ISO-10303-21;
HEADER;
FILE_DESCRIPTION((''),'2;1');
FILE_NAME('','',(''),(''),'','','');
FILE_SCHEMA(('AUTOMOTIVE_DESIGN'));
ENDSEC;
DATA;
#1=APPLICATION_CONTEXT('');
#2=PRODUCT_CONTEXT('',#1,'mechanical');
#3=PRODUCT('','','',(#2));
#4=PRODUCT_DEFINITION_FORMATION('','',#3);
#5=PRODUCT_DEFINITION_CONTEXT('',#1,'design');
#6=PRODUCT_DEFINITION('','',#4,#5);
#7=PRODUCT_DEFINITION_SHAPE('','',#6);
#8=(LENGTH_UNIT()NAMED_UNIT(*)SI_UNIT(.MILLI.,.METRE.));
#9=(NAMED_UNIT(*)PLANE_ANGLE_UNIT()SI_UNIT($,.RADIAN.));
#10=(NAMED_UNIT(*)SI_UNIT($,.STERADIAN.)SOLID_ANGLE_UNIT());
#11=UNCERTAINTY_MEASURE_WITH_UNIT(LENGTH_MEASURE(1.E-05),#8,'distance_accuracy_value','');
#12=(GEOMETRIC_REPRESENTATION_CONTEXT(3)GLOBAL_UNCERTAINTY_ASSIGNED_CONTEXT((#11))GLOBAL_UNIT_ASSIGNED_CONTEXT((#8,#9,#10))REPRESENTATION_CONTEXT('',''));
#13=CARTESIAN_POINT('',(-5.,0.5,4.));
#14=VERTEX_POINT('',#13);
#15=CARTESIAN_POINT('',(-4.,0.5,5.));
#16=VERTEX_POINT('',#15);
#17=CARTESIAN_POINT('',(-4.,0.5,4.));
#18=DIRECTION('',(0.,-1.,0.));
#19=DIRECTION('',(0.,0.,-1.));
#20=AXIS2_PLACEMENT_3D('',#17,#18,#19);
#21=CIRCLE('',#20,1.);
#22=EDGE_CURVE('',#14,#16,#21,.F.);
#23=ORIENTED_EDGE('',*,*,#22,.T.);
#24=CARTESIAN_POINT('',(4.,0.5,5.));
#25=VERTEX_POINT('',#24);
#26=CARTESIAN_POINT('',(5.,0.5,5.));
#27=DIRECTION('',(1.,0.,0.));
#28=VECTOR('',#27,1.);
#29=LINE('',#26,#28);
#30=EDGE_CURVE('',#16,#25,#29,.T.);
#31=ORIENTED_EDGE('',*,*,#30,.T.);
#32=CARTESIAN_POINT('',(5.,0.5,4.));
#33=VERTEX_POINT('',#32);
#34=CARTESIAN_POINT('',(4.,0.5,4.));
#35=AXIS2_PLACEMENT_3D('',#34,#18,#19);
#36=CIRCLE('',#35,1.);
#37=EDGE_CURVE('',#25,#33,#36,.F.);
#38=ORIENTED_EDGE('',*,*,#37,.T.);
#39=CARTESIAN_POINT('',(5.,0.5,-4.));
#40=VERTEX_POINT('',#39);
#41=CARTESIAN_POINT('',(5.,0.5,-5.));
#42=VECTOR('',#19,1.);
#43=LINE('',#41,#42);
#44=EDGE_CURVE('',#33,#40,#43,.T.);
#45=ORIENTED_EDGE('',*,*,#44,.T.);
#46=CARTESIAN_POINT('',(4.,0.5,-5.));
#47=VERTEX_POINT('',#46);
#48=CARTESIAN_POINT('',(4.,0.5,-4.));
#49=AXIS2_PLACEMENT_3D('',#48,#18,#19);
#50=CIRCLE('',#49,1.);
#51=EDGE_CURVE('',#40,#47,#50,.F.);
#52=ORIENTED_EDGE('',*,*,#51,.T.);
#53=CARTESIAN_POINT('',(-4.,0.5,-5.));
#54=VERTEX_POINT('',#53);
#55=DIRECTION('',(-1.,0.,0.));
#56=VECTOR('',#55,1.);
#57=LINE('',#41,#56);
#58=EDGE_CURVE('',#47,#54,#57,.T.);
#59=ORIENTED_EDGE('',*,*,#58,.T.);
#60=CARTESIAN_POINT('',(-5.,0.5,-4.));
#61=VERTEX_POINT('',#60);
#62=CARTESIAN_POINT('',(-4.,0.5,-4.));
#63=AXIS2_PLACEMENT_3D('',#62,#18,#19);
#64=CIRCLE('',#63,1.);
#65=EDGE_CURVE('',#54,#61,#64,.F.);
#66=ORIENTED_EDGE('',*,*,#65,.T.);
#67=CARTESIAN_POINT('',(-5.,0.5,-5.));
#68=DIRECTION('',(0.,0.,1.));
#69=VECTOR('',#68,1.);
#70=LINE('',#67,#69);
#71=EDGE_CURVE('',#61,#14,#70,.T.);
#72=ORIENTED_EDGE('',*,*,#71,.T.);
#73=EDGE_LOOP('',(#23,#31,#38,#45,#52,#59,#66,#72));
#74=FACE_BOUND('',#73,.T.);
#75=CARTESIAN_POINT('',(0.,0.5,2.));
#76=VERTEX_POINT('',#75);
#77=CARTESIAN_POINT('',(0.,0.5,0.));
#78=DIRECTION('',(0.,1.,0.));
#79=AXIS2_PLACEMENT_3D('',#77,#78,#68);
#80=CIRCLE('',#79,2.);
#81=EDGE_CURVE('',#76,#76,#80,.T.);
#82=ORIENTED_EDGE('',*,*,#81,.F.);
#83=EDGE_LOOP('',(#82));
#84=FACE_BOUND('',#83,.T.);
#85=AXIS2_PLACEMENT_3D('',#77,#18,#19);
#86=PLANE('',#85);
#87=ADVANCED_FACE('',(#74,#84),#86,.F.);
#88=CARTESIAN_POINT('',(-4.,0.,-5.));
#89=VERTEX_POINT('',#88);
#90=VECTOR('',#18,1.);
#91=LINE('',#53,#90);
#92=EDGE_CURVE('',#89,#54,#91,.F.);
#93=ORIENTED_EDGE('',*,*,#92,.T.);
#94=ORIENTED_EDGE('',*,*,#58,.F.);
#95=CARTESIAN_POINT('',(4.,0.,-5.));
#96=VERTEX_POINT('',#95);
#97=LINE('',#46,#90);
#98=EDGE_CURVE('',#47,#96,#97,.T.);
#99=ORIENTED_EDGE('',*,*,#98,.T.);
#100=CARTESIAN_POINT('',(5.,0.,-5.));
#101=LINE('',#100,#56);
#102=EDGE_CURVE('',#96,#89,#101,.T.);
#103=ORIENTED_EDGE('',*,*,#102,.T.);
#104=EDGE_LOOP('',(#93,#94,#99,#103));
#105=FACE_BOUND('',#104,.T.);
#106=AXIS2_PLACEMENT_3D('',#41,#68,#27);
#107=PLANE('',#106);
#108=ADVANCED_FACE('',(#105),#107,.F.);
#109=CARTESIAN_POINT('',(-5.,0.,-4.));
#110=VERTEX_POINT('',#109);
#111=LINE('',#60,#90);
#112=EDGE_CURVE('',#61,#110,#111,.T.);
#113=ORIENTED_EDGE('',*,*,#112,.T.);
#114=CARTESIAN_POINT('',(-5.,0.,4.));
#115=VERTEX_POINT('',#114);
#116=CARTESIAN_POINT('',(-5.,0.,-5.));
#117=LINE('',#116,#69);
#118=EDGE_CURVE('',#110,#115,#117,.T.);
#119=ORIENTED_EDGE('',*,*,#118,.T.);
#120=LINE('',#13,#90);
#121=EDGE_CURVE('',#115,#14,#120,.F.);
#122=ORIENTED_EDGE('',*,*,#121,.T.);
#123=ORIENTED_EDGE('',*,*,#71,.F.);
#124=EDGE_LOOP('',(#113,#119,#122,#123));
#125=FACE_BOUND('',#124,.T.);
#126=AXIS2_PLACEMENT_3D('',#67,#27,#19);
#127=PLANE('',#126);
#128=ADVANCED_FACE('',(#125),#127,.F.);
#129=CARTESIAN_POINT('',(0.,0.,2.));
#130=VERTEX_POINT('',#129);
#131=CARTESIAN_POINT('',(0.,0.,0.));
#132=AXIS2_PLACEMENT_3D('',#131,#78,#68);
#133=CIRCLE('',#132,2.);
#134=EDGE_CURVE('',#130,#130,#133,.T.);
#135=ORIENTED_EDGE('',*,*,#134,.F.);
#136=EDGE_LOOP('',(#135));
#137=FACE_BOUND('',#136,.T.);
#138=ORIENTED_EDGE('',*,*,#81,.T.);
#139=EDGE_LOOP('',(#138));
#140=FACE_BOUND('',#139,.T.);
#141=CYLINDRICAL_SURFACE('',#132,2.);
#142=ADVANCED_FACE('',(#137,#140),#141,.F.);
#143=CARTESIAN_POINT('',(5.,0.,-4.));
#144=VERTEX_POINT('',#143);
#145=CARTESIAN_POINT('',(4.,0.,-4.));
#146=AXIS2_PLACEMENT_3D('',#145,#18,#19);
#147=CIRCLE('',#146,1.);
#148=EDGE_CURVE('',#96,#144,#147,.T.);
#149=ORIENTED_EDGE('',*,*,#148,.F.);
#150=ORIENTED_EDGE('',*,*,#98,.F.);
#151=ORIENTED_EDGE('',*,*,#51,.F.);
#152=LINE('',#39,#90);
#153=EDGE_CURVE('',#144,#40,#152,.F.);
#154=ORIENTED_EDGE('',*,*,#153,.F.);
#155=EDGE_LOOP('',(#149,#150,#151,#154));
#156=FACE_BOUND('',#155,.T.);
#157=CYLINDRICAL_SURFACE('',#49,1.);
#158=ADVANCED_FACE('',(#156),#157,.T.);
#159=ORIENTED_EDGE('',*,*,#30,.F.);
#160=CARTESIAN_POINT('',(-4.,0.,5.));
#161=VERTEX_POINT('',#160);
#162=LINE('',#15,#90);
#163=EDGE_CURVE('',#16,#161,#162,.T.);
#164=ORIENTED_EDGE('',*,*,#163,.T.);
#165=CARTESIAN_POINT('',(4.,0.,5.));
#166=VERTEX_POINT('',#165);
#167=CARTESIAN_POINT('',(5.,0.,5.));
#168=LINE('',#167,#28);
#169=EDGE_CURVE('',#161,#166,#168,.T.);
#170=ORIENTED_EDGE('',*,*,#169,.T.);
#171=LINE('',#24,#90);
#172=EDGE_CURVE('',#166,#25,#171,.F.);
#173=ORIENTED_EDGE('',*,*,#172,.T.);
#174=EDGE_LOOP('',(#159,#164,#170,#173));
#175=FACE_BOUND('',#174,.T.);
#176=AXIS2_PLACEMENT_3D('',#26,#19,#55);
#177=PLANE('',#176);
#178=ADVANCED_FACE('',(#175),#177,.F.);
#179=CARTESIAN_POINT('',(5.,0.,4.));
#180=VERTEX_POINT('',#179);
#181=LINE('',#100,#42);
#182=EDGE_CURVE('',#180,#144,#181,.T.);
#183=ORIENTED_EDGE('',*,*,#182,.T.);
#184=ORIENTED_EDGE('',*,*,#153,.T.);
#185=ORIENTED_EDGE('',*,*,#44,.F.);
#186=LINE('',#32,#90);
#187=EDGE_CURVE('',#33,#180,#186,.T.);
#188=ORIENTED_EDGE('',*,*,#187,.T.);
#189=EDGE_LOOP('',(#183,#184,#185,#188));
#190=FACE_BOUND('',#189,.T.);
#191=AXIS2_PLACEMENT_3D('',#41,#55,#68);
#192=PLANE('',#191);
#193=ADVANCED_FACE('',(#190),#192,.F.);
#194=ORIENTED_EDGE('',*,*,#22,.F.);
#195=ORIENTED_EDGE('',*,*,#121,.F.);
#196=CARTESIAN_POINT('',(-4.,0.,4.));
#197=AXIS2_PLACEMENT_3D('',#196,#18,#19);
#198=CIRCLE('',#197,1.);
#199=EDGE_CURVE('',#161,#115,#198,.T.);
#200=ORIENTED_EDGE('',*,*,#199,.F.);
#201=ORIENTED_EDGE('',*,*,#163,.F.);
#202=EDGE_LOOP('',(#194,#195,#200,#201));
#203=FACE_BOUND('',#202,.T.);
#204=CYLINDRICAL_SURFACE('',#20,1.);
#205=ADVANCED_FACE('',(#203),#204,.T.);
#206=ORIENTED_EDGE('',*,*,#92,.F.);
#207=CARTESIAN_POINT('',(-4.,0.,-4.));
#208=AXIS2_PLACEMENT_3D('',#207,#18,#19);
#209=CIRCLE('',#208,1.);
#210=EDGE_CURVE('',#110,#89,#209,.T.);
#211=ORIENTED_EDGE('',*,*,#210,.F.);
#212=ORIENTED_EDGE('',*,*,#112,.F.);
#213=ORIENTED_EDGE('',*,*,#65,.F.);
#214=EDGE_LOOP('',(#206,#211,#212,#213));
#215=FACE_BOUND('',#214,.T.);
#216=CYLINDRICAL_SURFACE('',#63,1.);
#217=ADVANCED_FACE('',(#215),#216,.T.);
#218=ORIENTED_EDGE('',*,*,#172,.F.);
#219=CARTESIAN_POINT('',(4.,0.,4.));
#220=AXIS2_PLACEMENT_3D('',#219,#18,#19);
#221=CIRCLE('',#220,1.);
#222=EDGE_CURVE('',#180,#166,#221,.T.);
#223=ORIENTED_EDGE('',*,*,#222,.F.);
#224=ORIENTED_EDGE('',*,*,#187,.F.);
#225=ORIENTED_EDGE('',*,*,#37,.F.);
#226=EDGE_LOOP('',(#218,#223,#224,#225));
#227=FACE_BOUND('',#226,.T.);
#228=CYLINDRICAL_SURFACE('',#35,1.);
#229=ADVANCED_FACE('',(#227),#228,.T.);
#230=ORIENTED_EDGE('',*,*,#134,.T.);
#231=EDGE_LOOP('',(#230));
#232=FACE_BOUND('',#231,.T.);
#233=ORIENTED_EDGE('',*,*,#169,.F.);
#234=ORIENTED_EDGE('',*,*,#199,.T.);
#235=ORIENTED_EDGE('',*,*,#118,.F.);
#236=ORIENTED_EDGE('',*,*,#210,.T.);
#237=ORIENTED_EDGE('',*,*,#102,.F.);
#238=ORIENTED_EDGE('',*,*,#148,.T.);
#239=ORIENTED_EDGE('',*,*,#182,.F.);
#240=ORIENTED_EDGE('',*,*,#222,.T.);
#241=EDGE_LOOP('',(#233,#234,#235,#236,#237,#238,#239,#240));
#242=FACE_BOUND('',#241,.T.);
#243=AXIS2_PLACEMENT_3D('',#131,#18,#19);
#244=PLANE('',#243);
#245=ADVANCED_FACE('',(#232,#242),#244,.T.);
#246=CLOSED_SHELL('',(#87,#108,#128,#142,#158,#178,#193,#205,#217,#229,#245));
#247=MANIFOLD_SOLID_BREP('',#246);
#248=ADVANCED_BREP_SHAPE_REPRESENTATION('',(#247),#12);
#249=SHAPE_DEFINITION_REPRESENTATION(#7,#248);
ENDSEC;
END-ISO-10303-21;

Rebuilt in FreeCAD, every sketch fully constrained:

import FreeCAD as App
import Part
import Sketcher


def edges_at(feature, points):
    """Names of the edges that pass closest to the given points."""
    edges = feature.Shape.Edges
    near = lambda p: min(range(len(edges)), key=lambda i: edges[i].distToShape(Part.Vertex(*p))[0])
    return sorted({f"Edge{near(p) + 1}" for p in points})


def add_polygon(sketch, points):
    """Adds a closed chain of lines whose ends are joined by coincident constraints."""
    first, n = sketch.GeometryCount, len(points)
    for a, b in zip(points, points[1:] + points[:1]):
        sketch.addGeometry(Part.LineSegment(App.Vector(*a, 0), App.Vector(*b, 0)), False)
    for i in range(n):
        sketch.addConstraint(Sketcher.Constraint("Coincident", first + i, 2, first + (i + 1) % n, 1))

doc = App.newDocument("Part")
body = doc.addObject("PartDesign::Body", "Body")

# Sketch on XZ plane
sketch1 = doc.addObject("Sketcher::SketchObject", "Sketch")
body.addObject(sketch1)
sketch1.AttachmentSupport = (doc.XZ_Plane, [""])
sketch1.MapMode = "FlatFace"
add_polygon(sketch1, [(-5, -5), (-5, 5), (5, 5), (5, -5)])  # lines 0-3
sketch1.addConstraint(Sketcher.Constraint("Vertical", 0))
sketch1.addConstraint(Sketcher.Constraint("Horizontal", 1))
sketch1.addConstraint(Sketcher.Constraint("Vertical", 2))
sketch1.addConstraint(Sketcher.Constraint("Horizontal", 3))
sketch1.addConstraint(Sketcher.Constraint("Symmetric", 0, 2, 2, 2, -1, 1))
sketch1.addConstraint(Sketcher.Constraint("Equal", 3, 0))
sketch1.addConstraint(Sketcher.Constraint("DistanceX", 1, 1, 1, 2, 10.0))
pad1 = doc.addObject("PartDesign::Pad", "Pad")
body.addObject(pad1)
pad1.Profile = sketch1
pad1.Length = 0.5
pad1.Reversed = True
doc.recompute()

fillet = doc.addObject("PartDesign::Fillet", "Fillet")
body.addObject(fillet)
fillet.Base = (pad1, edges_at(pad1, [
    (-5, 0.25, -5),
    (5, 0.25, -5),
    (5, 0.25, 5),
    (-5, 0.25, 5),
]))
fillet.Radius = 1

# Sketch on XZ plane
sketch2 = doc.addObject("Sketcher::SketchObject", "Sketch001")
body.addObject(sketch2)
sketch2.AttachmentSupport = (doc.XZ_Plane, [""])
sketch2.MapMode = "FlatFace"
sketch2.AttachmentOffset = App.Placement(App.Vector(0, 0, -0.5), App.Rotation())
sketch2.addGeometry(Part.Circle(App.Vector(0, 0, 0), App.Vector(0, 0, 1), 2), False)
sketch2.addConstraint(Sketcher.Constraint("Coincident", 0, 3, -1, 1))
sketch2.addConstraint(Sketcher.Constraint("Diameter", 0, 4.0))
pocket1 = doc.addObject("PartDesign::Pocket", "Pocket")
body.addObject(pocket1)
pocket1.Profile = sketch2
pocket1.Length = 0.5
pocket1.Reversed = True

doc.recompute()
